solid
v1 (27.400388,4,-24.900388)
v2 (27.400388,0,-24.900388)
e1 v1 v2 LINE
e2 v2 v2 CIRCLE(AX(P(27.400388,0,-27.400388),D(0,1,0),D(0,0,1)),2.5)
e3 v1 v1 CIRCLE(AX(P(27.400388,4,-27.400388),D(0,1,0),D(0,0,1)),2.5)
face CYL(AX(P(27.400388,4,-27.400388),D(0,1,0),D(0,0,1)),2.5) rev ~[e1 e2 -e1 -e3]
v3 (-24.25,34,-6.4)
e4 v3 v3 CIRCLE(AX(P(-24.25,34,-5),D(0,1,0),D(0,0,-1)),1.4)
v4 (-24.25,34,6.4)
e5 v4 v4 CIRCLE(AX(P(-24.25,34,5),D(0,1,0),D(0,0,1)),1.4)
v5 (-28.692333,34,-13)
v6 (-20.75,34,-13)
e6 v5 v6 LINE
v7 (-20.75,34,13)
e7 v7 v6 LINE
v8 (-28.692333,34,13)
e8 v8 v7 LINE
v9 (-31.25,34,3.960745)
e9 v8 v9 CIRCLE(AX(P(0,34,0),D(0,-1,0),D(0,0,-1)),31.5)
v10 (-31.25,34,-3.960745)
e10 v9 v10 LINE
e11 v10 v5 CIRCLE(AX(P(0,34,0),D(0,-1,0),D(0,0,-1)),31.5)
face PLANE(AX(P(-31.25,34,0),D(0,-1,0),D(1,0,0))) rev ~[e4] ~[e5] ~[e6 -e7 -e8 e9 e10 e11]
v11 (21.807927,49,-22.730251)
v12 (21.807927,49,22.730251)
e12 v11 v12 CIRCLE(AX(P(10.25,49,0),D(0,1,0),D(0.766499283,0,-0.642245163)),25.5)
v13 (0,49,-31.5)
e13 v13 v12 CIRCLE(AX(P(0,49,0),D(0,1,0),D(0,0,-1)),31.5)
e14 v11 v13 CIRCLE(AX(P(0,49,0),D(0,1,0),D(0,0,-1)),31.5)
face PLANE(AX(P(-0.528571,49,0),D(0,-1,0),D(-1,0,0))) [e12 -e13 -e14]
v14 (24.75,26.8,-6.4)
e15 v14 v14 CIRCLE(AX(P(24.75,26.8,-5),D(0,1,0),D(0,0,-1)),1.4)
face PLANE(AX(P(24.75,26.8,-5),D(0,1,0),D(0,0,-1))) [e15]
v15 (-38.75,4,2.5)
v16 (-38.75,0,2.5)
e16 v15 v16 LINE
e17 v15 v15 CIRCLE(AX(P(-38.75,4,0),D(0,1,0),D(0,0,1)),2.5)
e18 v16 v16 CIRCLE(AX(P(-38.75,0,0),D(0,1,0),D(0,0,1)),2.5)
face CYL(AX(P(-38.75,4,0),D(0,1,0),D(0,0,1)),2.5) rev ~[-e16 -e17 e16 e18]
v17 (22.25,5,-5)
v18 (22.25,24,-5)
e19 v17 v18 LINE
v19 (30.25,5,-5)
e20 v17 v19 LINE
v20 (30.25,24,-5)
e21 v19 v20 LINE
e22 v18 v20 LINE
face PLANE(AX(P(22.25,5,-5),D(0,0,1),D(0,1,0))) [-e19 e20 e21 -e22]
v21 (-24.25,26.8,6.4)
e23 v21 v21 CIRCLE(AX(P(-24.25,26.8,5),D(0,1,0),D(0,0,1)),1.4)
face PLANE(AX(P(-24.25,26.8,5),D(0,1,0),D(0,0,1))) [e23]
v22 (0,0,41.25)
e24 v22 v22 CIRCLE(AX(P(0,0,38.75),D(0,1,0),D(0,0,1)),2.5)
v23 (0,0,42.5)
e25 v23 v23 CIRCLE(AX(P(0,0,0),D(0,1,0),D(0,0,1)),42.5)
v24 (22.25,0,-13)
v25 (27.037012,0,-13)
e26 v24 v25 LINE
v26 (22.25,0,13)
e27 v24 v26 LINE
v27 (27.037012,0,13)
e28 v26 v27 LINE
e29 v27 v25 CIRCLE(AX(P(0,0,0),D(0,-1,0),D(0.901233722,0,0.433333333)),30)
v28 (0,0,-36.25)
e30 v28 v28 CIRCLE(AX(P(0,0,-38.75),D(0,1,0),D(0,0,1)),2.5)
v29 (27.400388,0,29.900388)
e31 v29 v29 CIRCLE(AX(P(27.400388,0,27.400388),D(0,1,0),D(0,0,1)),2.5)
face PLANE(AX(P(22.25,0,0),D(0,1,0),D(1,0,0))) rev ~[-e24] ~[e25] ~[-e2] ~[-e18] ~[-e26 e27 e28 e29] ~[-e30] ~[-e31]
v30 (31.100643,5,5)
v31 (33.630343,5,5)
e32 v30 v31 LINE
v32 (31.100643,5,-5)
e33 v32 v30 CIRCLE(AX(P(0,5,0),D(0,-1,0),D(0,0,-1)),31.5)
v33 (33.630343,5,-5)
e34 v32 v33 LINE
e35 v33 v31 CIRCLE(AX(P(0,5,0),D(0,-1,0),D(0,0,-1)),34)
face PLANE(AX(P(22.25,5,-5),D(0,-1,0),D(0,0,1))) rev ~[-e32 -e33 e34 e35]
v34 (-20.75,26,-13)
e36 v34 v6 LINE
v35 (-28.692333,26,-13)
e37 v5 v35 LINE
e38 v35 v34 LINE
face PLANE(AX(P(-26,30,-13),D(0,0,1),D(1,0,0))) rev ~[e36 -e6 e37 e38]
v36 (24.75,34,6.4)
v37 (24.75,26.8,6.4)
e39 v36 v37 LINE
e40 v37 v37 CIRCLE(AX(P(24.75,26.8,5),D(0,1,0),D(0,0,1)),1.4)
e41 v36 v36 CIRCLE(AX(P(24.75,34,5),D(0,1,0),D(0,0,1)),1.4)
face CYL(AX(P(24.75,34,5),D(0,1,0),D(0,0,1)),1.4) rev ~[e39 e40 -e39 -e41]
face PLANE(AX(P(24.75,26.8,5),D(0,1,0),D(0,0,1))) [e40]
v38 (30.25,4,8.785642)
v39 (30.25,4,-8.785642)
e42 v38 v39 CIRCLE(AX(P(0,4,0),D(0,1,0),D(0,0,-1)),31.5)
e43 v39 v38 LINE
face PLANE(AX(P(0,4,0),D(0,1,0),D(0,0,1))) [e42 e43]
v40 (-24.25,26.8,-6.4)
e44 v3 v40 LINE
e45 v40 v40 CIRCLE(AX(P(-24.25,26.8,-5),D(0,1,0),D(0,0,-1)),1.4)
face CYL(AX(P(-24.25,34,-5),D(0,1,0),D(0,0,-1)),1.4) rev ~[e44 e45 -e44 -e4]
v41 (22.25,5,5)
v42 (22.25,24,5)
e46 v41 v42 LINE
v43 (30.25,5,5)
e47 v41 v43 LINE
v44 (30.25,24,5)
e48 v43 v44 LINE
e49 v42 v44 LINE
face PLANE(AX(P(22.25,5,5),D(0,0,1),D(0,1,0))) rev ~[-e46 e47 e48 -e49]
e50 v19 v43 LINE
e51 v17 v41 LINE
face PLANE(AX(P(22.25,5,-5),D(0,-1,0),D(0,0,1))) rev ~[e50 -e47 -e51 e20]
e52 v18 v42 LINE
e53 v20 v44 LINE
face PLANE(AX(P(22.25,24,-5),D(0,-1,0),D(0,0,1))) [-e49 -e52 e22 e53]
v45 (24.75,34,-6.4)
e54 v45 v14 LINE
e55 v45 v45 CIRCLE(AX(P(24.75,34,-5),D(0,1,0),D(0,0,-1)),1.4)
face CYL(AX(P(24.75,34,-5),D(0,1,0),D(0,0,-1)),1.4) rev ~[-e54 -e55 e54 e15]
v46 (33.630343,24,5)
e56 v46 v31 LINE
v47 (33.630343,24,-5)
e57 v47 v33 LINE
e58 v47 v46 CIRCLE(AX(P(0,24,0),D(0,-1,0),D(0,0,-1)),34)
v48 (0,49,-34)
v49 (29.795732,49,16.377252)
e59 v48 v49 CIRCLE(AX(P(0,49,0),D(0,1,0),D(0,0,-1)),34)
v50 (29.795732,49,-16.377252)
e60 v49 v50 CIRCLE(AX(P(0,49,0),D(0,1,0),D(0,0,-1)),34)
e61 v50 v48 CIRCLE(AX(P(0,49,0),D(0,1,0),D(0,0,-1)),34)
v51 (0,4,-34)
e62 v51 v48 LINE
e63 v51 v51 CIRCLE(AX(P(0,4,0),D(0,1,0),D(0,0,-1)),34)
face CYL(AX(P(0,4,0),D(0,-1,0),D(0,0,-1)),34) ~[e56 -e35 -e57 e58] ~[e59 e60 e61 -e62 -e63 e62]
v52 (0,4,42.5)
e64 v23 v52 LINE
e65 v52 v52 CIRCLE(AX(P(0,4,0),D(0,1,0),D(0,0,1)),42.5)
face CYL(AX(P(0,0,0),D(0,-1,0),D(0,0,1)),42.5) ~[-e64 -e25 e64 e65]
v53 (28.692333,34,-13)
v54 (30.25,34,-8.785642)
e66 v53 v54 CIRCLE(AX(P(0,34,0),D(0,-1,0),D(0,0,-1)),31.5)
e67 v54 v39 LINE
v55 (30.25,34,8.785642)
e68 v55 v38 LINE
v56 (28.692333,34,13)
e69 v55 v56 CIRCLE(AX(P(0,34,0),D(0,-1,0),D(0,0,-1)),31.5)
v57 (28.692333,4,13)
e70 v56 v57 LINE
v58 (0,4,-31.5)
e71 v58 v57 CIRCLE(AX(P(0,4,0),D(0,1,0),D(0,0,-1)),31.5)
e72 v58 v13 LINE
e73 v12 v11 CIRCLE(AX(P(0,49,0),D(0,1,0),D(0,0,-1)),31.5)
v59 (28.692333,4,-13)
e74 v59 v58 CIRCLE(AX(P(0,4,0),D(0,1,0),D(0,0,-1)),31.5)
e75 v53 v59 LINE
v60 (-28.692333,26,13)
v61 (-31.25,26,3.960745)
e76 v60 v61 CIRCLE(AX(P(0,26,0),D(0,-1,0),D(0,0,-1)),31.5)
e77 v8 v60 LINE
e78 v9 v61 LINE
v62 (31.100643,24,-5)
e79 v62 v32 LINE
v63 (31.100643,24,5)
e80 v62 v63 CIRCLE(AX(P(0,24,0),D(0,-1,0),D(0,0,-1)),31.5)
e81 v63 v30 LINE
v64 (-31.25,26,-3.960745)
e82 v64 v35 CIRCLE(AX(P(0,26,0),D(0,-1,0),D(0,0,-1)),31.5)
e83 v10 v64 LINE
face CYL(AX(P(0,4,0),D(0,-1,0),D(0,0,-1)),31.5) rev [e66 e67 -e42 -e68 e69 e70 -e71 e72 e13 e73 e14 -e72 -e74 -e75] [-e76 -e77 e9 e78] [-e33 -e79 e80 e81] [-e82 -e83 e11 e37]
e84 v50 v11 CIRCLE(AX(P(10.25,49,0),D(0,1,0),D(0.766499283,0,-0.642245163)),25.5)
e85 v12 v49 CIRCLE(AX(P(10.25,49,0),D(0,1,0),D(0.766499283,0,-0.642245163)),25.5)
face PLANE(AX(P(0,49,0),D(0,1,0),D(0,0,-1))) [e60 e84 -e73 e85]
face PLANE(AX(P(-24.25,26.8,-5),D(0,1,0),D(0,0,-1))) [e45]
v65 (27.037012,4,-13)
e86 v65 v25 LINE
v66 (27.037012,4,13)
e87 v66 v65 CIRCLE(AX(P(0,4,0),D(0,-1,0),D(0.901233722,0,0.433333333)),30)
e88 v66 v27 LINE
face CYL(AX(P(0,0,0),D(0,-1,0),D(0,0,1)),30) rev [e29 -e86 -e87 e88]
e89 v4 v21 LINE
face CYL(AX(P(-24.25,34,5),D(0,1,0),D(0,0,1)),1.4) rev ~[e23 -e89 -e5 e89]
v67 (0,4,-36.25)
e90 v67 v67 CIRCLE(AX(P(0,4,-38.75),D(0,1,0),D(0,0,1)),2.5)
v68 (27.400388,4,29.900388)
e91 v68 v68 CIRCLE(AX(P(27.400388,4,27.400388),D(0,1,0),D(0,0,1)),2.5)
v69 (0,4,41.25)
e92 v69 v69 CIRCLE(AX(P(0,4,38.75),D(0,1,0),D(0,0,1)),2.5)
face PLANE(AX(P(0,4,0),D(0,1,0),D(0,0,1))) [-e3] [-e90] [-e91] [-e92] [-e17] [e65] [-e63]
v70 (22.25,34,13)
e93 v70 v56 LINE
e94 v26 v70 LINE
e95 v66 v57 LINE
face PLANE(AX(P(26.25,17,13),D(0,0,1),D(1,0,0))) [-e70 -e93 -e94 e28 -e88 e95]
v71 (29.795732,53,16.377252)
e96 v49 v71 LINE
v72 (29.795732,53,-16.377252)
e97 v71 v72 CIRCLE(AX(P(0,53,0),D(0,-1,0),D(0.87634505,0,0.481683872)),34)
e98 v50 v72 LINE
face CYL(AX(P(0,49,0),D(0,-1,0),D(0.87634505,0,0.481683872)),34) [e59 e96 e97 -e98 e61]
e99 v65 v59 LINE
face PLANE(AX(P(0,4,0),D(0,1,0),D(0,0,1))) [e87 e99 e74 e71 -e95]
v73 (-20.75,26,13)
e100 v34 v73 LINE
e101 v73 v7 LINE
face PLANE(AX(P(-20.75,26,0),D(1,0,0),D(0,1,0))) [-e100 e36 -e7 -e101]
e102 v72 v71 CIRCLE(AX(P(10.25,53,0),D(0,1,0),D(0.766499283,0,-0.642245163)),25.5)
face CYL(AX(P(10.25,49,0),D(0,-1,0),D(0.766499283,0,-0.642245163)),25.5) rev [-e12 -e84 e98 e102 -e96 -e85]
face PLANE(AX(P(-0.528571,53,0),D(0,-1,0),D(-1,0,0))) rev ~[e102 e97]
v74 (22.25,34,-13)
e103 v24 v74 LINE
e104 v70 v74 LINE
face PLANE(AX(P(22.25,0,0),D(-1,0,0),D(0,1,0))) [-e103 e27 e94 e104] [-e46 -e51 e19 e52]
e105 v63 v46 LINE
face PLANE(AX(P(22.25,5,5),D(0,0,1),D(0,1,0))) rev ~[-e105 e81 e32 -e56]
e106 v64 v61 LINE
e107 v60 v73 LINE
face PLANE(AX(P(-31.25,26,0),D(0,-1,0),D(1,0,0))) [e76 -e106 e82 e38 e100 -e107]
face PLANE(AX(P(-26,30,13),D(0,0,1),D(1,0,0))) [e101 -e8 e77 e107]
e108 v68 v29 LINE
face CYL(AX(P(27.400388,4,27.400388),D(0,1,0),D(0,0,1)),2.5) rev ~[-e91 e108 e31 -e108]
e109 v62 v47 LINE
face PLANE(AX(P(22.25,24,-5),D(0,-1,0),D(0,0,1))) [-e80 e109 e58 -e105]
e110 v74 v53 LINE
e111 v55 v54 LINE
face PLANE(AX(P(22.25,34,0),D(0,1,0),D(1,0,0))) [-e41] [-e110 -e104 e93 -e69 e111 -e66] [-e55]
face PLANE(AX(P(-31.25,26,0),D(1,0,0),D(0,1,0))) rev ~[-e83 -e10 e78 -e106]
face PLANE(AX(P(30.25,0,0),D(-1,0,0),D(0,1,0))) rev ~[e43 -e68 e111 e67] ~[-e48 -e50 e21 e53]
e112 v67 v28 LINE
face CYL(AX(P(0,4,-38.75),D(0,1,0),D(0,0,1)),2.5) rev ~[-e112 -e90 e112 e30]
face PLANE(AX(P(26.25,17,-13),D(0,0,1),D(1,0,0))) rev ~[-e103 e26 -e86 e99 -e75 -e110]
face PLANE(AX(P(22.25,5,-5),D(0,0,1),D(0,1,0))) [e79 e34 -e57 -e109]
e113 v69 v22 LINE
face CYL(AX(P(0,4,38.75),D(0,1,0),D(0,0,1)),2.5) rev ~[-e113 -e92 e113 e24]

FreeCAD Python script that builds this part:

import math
import FreeCAD as App
import Part
import Sketcher


def add_polygon(sketch, points):
    """Adds a closed chain of lines whose ends are joined by coincident constraints."""
    first, n = sketch.GeometryCount, len(points)
    for a, b in zip(points, points[1:] + points[:1]):
        sketch.addGeometry(Part.LineSegment(App.Vector(*a, 0), App.Vector(*b, 0)), False)
    for i in range(n):
        sketch.addConstraint(Sketcher.Constraint("Coincident", first + i, 2, first + (i + 1) % n, 1))

doc = App.newDocument("Part")
body = doc.addObject("PartDesign::Body", "Body")

sketch1 = body.newObject("Sketcher::SketchObject", "Sketch")
sketch1.AttachmentSupport = (doc.getObject("XZ_Plane"), [""])
sketch1.MapMode = "FlatFace"
sketch1.addGeometry([
    Part.Circle(App.Vector(0, 0, 0), App.Vector(0, 0, 1), 42),
    Part.Circle(App.Vector(0, 0, 0), App.Vector(0, 0, 1), 30),
], False)
sketch1.addConstraint([
    Sketcher.Constraint("Coincident", 0, 3, -1, 1),
    Sketcher.Constraint("Coincident", 1, 3, -1, 1),
    Sketcher.Constraint("Diameter", 0, 85.0),
    Sketcher.Constraint("Diameter", 1, 60.0),
])
pad1 = body.newObject("PartDesign::Pad", "Pad")
pad1.Profile = sketch1
pad1.Length = 4
pad1.Reversed = True

sketch2 = body.newObject("Sketcher::SketchObject", "Sketch001")
sketch2.AttachmentSupport = (doc.getObject("XZ_Plane"), [""])
sketch2.MapMode = "FlatFace"
sketch2.AttachmentOffset = App.Placement(App.Vector(0, 0, -4), App.Rotation())
sketch2.addGeometry([
    Part.Circle(App.Vector(0, 0, 0), App.Vector(0, 0, 1), 34),
    Part.Circle(App.Vector(0, 0, 0), App.Vector(0, 0, 1), 32),
], False)
sketch2.addConstraint([
    Sketcher.Constraint("Coincident", 0, 3, -1, 1),
    Sketcher.Constraint("Coincident", 1, 3, -1, 1),
    Sketcher.Constraint("Diameter", 0, 68.0),
    Sketcher.Constraint("Diameter", 1, 63.0),
])
pad2 = body.newObject("PartDesign::Pad", "Pad001")
pad2.Profile = sketch2
pad2.Length = 45
pad2.Reversed = True

sketch3 = body.newObject("Sketcher::SketchObject", "Sketch002")
sketch3.AttachmentSupport = (doc.getObject("XY_Plane"), [""])
sketch3.MapMode = "FlatFace"
add_polygon(sketch3, [(22, 34), (22, 0), (30, 0), (30, 34)])
add_polygon(sketch3, [(-31, 34), (-31, 26), (-21, 26), (-21, 34)])
sketch3.addConstraint([
    Sketcher.Constraint("Vertical", 0),
    Sketcher.Constraint("Horizontal", 1),
    Sketcher.Constraint("Vertical", 2),
    Sketcher.Constraint("Horizontal", 3),
    Sketcher.Constraint("Vertical", 4),
    Sketcher.Constraint("Horizontal", 5),
    Sketcher.Constraint("Vertical", 6),
    Sketcher.Constraint("Horizontal", 7),
    Sketcher.Constraint("PointOnObject", 0, 2, -1),
    Sketcher.Constraint("Horizontal", 3, 2, 6, 2),
    Sketcher.Constraint("Equal", 3, 4),
    Sketcher.Constraint("DistanceX", 1, 1, 1, 2, 8.0),
    Sketcher.Constraint("DistanceY", 0, 2, 0, 1, 34.0),
    Sketcher.Constraint("DistanceX", 5, 1, 5, 2, 10.5),
    Sketcher.Constraint("DistanceX", 5, 2, 3, 2, 43.0),
    Sketcher.Constraint("DistanceX", -1, 1, 0, 2, 22.25),
])
pad3 = body.newObject("PartDesign::Pad", "Pad002")
pad3.Profile = sketch3
pad3.Length = 26
pad3.Midplane = True

sketch4 = body.newObject("Sketcher::SketchObject", "Sketch003")
sketch4.AttachmentSupport = (doc.getObject("YZ_Plane"), [""])
sketch4.MapMode = "FlatFace"
sketch4.AttachmentOffset = App.Placement(App.Vector(0, 0, 22.25), App.Rotation())
add_polygon(sketch4, [(24, -5), (5, -5), (5, 5), (24, 5)])
sketch4.addConstraint([
    Sketcher.Constraint("Horizontal", 0),
    Sketcher.Constraint("Vertical", 1),
    Sketcher.Constraint("Horizontal", 2),
    Sketcher.Constraint("Vertical", 3),
    Sketcher.Constraint("DistanceX", 0, 2, 0, 1, 19.0),
    Sketcher.Constraint("DistanceY", 1, 1, 1, 2, 10.0),
    Sketcher.Constraint("DistanceX", -1, 1, 0, 2, 5.0),
    Sketcher.Constraint("DistanceY", 0, 2, -1, 1, 5.0),
])
pocket1 = body.newObject("PartDesign::Pocket", "Pocket")
pocket1.Profile = sketch4
pocket1.Type = "ThroughAll"
pocket1.Reversed = True

sketch5 = body.newObject("Sketcher::SketchObject", "Sketch004")
sketch5.AttachmentSupport = (doc.getObject("XZ_Plane"), [""])
sketch5.MapMode = "FlatFace"
sketch5.AttachmentOffset = App.Placement(App.Vector(0, 0, -34), App.Rotation())
sketch5.addGeometry([
    Part.Circle(App.Vector(-24.2, 5, 0), App.Vector(0, 0, 1), 1.4),
    Part.Circle(App.Vector(24.8, 5, 0), App.Vector(0, 0, 1), 1.4),
    Part.Circle(App.Vector(24.8, -5, 0), App.Vector(0, 0, 1), 1.4),
    Part.Circle(App.Vector(-24.2, -5, 0), App.Vector(0, 0, 1), 1.4),
], False)
sketch5.addConstraint([
    Sketcher.Constraint("Equal", 0, 1),
    Sketcher.Constraint("Equal", 1, 2),
    Sketcher.Constraint("Equal", 2, 3),
    Sketcher.Constraint("Symmetric", 1, 3, 2, 3, -1),
    Sketcher.Constraint("Symmetric", 0, 3, 3, 3, -1),
    Sketcher.Constraint("Horizontal", 0, 3, 1, 3),
    Sketcher.Constraint("Diameter", 0, 2.8),
    Sketcher.Constraint("DistanceY", -1, 1, 0, 3, 5.0),
    Sketcher.Constraint("DistanceX", 0, 3, 1, 3, 49.0),
    Sketcher.Constraint("DistanceX", 0, 3, -1, 1, 24.25),
])
pocket2 = body.newObject("PartDesign::Pocket", "Pocket001")
pocket2.Profile = sketch5
pocket2.Length = 7.2
pocket2.Reversed = True

sketch6 = body.newObject("Sketcher::SketchObject", "Sketch005")
sketch6.AttachmentSupport = (doc.getObject("XZ_Plane"), [""])
sketch6.MapMode = "FlatFace"
sketch6.AttachmentOffset = App.Placement(App.Vector(0, 0, -4), App.Rotation())
sketch6.addGeometry([
    Part.Circle(App.Vector(-38.8, 0, 0), App.Vector(0, 0, 1), 2.5),
    Part.Circle(App.Vector(0, -38.8, 0), App.Vector(0, 0, 1), 2.5),
    Part.Circle(App.Vector(0, 38.8, 0), App.Vector(0, 0, 1), 2.5),
    Part.Circle(App.Vector(27.4, 27.4, 0), App.Vector(0, 0, 1), 2.5),
    Part.Circle(App.Vector(27.4, -27.4, 0), App.Vector(0, 0, 1), 2.5),
], False)
sketch6.addConstraint([
    Sketcher.Constraint("Equal", 0, 1),
    Sketcher.Constraint("Equal", 1, 2),
    Sketcher.Constraint("Equal", 2, 3),
    Sketcher.Constraint("Equal", 3, 4),
    Sketcher.Constraint("Symmetric", 1, 3, 2, 3, -1, 1),
    Sketcher.Constraint("Symmetric", 3, 3, 4, 3, -1),
    Sketcher.Constraint("PointOnObject", 0, 3, -1),
    Sketcher.Constraint("PointOnObject", 1, 3, -2),
    Sketcher.Constraint("Diameter", 0, 5.0),
    Sketcher.Constraint("DistanceY", 1, 3, 2, 3, 77.5),
    Sketcher.Constraint("DistanceX", 0, 3, -1, 1, 38.75),
    Sketcher.Constraint("DistanceX", -1, 1, 3, 3, 27.400388),
    Sketcher.Constraint("DistanceY", -1, 1, 3, 3, 27.400388),
])
pocket3 = body.newObject("PartDesign::Pocket", "Pocket002")
pocket3.Profile = sketch6
pocket3.Length = 4
pocket3.Reversed = True

sketch7 = body.newObject("Sketcher::SketchObject", "Sketch006")
sketch7.AttachmentSupport = (doc.getObject("XZ_Plane"), [""])
sketch7.MapMode = "FlatFace"
sketch7.AttachmentOffset = App.Placement(App.Vector(0, 0, -49), App.Rotation())
sketch7.addGeometry([
    Part.ArcOfCircle(Part.Circle(App.Vector(10, 0, 0), App.Vector(0, 0, 1), 26), math.radians(40), math.radians(320)),
    Part.ArcOfCircle(Part.Circle(App.Vector(0, 0, 0), App.Vector(0, 0, 1), 34), math.radians(29), math.radians(331)),
], False)
sketch7.addConstraint([
    Sketcher.Constraint("Coincident", 0, 1, 1, 1),
    Sketcher.Constraint("Coincident", 1, 2, 0, 2),
    Sketcher.Constraint("Coincident", 1, 3, -1, 1),
    Sketcher.Constraint("PointOnObject", 0, 3, -1),
    Sketcher.Constraint("Radius", 1, 34.0),
    Sketcher.Constraint("Radius", 0, 25.5),
    Sketcher.Constraint("DistanceX", -1, 1, 0, 3, 10.25),
])
pad4 = body.newObject("PartDesign::Pad", "Pad003")
pad4.Profile = sketch7
pad4.Length = 4
pad4.Reversed = True

doc.recompute()
